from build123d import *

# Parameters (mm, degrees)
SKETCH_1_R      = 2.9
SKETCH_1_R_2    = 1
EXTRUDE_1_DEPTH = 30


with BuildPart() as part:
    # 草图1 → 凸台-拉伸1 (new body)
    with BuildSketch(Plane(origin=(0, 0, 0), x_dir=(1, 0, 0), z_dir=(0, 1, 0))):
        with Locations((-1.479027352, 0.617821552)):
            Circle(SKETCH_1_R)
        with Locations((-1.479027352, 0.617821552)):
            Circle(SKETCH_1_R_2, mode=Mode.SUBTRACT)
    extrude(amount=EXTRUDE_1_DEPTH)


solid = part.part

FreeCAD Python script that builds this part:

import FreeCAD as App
import Part
import Sketcher

doc = App.newDocument("Part")
body = doc.addObject("PartDesign::Body", "Body")

sketch1 = body.newObject("Sketcher::SketchObject", "Sketch")
sketch1.AttachmentSupport = (doc.getObject("XZ_Plane"), [""])
sketch1.MapMode = "FlatFace"
sketch1.addGeometry(Part.Circle(App.Vector(-1.5, -0.6, 0), App.Vector(0, 0, 1), 2.9), False)
sketch1.addGeometry(Part.Circle(App.Vector(-1.5, -0.6, 0), App.Vector(0, 0, 1), 1), False)
sketch1.addConstraint(Sketcher.Constraint("Coincident", 1, 3, 0, 3))
sketch1.addConstraint(Sketcher.Constraint("Diameter", 1, 2.0))
sketch1.addConstraint(Sketcher.Constraint("Diameter", 0, 5.8))
sketch1.addConstraint(Sketcher.Constraint("DistanceY", 0, 3, -1, 1, 0.617822))
sketch1.addConstraint(Sketcher.Constraint("DistanceX", 0, 3, -1, 1, 1.479027))
pad1 = body.newObject("PartDesign::Pad", "Pad")
pad1.Profile = sketch1
pad1.Length = 30
pad1.Reversed = True

doc.recompute()
